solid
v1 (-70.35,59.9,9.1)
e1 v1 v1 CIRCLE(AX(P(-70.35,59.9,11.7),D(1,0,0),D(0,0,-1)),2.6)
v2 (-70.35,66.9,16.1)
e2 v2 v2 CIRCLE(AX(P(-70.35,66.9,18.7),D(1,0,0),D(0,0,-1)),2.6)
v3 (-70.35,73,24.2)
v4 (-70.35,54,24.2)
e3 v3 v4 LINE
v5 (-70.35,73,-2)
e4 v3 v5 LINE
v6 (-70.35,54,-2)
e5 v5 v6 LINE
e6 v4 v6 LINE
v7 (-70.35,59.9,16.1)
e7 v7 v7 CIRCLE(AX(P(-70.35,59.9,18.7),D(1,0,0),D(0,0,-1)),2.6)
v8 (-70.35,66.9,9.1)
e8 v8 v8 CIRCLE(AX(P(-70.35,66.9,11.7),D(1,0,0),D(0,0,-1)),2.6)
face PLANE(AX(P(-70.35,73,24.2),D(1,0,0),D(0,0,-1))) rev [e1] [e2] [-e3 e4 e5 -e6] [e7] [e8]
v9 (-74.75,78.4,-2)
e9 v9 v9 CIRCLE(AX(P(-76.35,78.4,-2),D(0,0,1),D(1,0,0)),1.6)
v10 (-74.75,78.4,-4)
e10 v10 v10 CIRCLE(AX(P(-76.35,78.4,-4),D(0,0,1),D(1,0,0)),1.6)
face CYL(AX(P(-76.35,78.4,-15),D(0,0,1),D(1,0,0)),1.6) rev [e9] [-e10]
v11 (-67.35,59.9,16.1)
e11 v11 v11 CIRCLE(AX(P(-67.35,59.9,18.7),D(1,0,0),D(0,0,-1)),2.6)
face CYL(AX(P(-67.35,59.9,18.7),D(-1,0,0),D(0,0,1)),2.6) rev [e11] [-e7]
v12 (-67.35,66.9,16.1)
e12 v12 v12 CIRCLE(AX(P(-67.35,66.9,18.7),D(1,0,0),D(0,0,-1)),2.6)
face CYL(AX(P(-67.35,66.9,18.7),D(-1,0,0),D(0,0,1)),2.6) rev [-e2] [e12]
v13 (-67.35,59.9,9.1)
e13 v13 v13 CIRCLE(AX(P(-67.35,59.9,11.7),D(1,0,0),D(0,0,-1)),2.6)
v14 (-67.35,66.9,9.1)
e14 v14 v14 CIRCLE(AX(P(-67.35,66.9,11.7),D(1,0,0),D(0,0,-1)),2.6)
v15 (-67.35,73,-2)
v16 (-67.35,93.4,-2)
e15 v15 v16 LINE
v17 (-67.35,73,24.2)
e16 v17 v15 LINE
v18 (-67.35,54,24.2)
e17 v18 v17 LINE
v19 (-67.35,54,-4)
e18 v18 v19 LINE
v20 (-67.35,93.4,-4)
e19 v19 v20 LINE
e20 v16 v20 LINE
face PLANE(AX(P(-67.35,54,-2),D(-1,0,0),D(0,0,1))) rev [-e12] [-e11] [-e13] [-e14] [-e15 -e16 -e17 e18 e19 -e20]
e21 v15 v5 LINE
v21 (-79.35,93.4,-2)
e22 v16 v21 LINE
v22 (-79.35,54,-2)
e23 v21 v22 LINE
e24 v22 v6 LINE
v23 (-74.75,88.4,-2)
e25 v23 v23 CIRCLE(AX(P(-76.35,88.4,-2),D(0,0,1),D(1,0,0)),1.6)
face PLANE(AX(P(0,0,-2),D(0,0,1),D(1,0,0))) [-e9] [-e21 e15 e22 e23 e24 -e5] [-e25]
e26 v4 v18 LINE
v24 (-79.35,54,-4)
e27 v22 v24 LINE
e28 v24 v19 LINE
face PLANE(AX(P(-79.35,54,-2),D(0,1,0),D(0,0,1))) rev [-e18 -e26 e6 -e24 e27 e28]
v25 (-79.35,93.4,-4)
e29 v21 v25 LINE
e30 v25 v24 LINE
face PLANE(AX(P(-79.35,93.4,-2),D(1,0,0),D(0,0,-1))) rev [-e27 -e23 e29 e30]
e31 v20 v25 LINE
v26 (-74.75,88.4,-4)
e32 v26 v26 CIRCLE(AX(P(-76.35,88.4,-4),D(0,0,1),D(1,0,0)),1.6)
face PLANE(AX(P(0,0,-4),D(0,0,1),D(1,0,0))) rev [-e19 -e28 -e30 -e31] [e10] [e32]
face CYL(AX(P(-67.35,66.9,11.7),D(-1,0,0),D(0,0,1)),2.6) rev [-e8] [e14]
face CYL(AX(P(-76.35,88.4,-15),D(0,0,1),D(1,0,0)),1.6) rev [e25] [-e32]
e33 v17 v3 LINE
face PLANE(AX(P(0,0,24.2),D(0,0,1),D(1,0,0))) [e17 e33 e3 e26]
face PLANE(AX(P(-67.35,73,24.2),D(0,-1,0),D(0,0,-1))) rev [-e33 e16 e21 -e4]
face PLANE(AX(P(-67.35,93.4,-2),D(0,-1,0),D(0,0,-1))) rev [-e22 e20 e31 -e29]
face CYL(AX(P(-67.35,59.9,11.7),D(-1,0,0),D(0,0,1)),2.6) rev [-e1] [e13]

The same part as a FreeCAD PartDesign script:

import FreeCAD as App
import Part
import Sketcher

V = App.Vector
Q = App.Units.Quantity


def add_polygon(sketch, points):
    """Adds a closed chain of lines whose ends are joined by coincident constraints."""
    first, n = sketch.GeometryCount, len(points)
    for a, b in zip(points, points[1:] + points[:1]):
        sketch.addGeometry(Part.LineSegment(App.Vector(*a, 0), App.Vector(*b, 0)), False)
    for i in range(n):
        sketch.addConstraint(Sketcher.Constraint("Coincident", first + i, 2, first + (i + 1) % n, 1))

doc = App.newDocument("Part")
body = doc.addObject("PartDesign::Body", "Body")

# Sketch on XY plane
sketch1 = body.newObject("Sketcher::SketchObject", "Sketch")
sketch1.AttachmentSupport = (doc.getObject("XY_Plane"), [""])
sketch1.MapMode = "FlatFace"
sketch1.AttachmentOffset = App.Placement(V(0, 0, -4), App.Rotation())
add_polygon(sketch1, [(-79, 93), (-79, 54), (-67, 54), (-67, 93)])  # lines 0-3
sketch1.addConstraint(Sketcher.Constraint("Vertical", 0))
sketch1.addConstraint(Sketcher.Constraint("Horizontal", 1))
sketch1.addConstraint(Sketcher.Constraint("Vertical", 2))
sketch1.addConstraint(Sketcher.Constraint("Horizontal", 3))
sketch1.addConstraint(Sketcher.Constraint("DistanceX", 1, 1, 1, 2, Q("12 mm")))
sketch1.addConstraint(Sketcher.Constraint("DistanceY", 0, 2, 0, 1, Q("39.4 mm")))
sketch1.addConstraint(Sketcher.Constraint("DistanceY", -1, 1, 0, 2, Q("54 mm")))
sketch1.addConstraint(Sketcher.Constraint("DistanceX", 0, 2, -1, 1, Q("79.35 mm")))
pad1 = body.newObject("PartDesign::Pad", "Pad")
pad1.Profile = sketch1
pad1.Length = 2

# Sketch on XY plane
sketch2 = body.newObject("Sketcher::SketchObject", "Sketch001")
sketch2.AttachmentSupport = (doc.getObject("XY_Plane"), [""])
sketch2.MapMode = "FlatFace"
sketch2.AttachmentOffset = App.Placement(V(0, 0, -2), App.Rotation())
add_polygon(sketch2, [(-70.3, 73), (-70.3, 54), (-67.3, 54), (-67.3, 73)])  # lines 0-3
sketch2.addConstraint(Sketcher.Constraint("Vertical", 0))
sketch2.addConstraint(Sketcher.Constraint("Horizontal", 1))
sketch2.addConstraint(Sketcher.Constraint("Vertical", 2))
sketch2.addConstraint(Sketcher.Constraint("Horizontal", 3))
sketch2.addConstraint(Sketcher.Constraint("DistanceX", 1, 1, 1, 2, Q("3 mm")))
sketch2.addConstraint(Sketcher.Constraint("DistanceY", 0, 2, 0, 1, Q("19 mm")))
sketch2.addConstraint(Sketcher.Constraint("DistanceY", -1, 1, 0, 2, Q("54 mm")))
sketch2.addConstraint(Sketcher.Constraint("DistanceX", 0, 2, -1, 1, Q("70.35 mm")))
pad2 = body.newObject("PartDesign::Pad", "Pad001")
pad2.Profile = sketch2
pad2.Length = 26.2

# Sketch on YZ plane
sketch3 = body.newObject("Sketcher::SketchObject", "Sketch002")
sketch3.AttachmentSupport = (doc.getObject("YZ_Plane"), [""])
sketch3.MapMode = "FlatFace"
sketch3.AttachmentOffset = App.Placement(V(0, 0, -70.35), App.Rotation())
sketch3.addGeometry(Part.Circle(V(66.9, 18.7, 0), V(0, 0, 1), 2.6), False)
sketch3.addGeometry(Part.Circle(V(59.9, 11.7, 0), V(0, 0, 1), 2.6), False)
sketch3.addGeometry(Part.Circle(V(66.9, 11.7, 0), V(0, 0, 1), 2.6), False)
sketch3.addGeometry(Part.Circle(V(59.9, 18.7, 0), V(0, 0, 1), 2.6), False)
sketch3.addConstraint(Sketcher.Constraint("Equal", 0, 1))
sketch3.addConstraint(Sketcher.Constraint("Equal", 1, 2))
sketch3.addConstraint(Sketcher.Constraint("Equal", 2, 3))
sketch3.addConstraint(Sketcher.Constraint("Horizontal", 1, 3, 2, 3))
sketch3.addConstraint(Sketcher.Constraint("Horizontal", 0, 3, 3, 3))
sketch3.addConstraint(Sketcher.Constraint("Vertical", 0, 3, 2, 3))
sketch3.addConstraint(Sketcher.Constraint("Vertical", 1, 3, 3, 3))
sketch3.addConstraint(Sketcher.Constraint("Diameter", 0, Q("5.2 mm")))
sketch3.addConstraint(Sketcher.Constraint("DistanceX", 1, 3, 0, 3, Q("7 mm")))
sketch3.addConstraint(Sketcher.Constraint("DistanceY", 1, 3, 0, 3, Q("7 mm")))
sketch3.addConstraint(Sketcher.Constraint("DistanceX", -1, 1, 0, 3, Q("66.9 mm")))
sketch3.addConstraint(Sketcher.Constraint("DistanceY", -1, 1, 0, 3, Q("18.7 mm")))
pocket1 = body.newObject("PartDesign::Pocket", "Pocket")
pocket1.Profile = sketch3
pocket1.Length = 3
pocket1.Reversed = True

# Sketch on XY plane
sketch4 = body.newObject("Sketcher::SketchObject", "Sketch003")
sketch4.AttachmentSupport = (doc.getObject("XY_Plane"), [""])
sketch4.MapMode = "FlatFace"
sketch4.addGeometry(Part.Circle(V(-76.3, 78.4, 0), V(0, 0, 1), 1.6), False)
sketch4.addGeometry(Part.Circle(V(-76.3, 88.4, 0), V(0, 0, 1), 1.6), False)
sketch4.addConstraint(Sketcher.Constraint("Equal", 0, 1))
sketch4.addConstraint(Sketcher.Constraint("Vertical", 0, 3, 1, 3))
sketch4.addConstraint(Sketcher.Constraint("Diameter", 0, Q("3.2 mm")))
sketch4.addConstraint(Sketcher.Constraint("DistanceY", 0, 3, 1, 3, Q("10 mm")))
sketch4.addConstraint(Sketcher.Constraint("DistanceY", -1, 1, 0, 3, Q("78.4 mm")))
sketch4.addConstraint(Sketcher.Constraint("DistanceX", 0, 3, -1, 1, Q("76.35 mm")))
pocket2 = body.newObject("PartDesign::Pocket", "Pocket001")
pocket2.Profile = sketch4
pocket2.Length = 30
pocket2.Midplane = True

doc.recompute()
